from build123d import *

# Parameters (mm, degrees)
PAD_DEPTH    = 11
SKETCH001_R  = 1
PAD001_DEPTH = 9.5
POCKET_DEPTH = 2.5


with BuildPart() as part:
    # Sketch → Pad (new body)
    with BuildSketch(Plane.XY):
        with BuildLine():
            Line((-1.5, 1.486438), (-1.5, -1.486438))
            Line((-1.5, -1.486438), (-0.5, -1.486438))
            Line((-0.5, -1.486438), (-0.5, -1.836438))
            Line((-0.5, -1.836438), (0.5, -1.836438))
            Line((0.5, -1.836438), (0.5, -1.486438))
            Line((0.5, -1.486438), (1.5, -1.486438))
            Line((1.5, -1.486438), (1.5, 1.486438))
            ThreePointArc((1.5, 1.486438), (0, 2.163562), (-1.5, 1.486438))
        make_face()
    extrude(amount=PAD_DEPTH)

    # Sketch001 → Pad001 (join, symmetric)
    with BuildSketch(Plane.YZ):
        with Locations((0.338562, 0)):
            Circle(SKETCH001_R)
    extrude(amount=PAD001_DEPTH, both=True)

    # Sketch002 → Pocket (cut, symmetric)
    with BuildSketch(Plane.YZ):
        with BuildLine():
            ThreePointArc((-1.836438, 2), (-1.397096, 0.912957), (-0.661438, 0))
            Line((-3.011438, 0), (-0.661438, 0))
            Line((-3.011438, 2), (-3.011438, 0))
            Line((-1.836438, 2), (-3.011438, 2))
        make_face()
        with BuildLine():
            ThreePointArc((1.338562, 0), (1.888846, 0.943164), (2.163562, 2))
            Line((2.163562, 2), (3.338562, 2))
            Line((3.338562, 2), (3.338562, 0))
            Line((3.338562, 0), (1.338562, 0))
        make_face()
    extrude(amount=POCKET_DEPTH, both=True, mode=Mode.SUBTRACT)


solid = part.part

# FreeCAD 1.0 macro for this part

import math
import FreeCAD as App
import Part
import Sketcher
from FreeCAD import Vector
Q = App.Units.Quantity

doc = App.newDocument("Part")
body = doc.addObject("PartDesign::Body", "Body")

sketch1 = body.newObject("Sketcher::SketchObject", "Sketch")
sketch1.AttachmentSupport = (doc.getObject("XY_Plane"), [""])
sketch1.MapMode = "FlatFace"
sketch1.addGeometry([
    Part.LineSegment(Vector(-1.5, 1.49, 0), Vector(-1.5, -1.49, 0)),
    Part.LineSegment(Vector(-1.5, -1.49, 0), Vector(-0.5, -1.49, 0)),
    Part.LineSegment(Vector(-0.5, -1.49, 0), Vector(-0.5, -1.84, 0)),
    Part.LineSegment(Vector(-0.5, -1.84, 0), Vector(0.5, -1.84, 0)),
    Part.LineSegment(Vector(0.5, -1.84, 0), Vector(0.5, -1.49, 0)),
    Part.LineSegment(Vector(0.5, -1.49, 0), Vector(1.5, -1.49, 0)),
    Part.LineSegment(Vector(1.5, -1.49, 0), Vector(1.5, 1.49, 0)),
    Part.ArcOfCircle(Part.Circle(Vector(0, 0.16, 0), Vector(0, 0, 1), 2), math.radians(41), math.radians(139)),
], False)
sketch1.addConstraint([
    Sketcher.Constraint("Coincident", 0, 2, 1, 1),
    Sketcher.Constraint("Coincident", 1, 2, 2, 1),
    Sketcher.Constraint("Coincident", 2, 2, 3, 1),
    Sketcher.Constraint("Coincident", 3, 2, 4, 1),
    Sketcher.Constraint("Coincident", 4, 2, 5, 1),
    Sketcher.Constraint("Coincident", 5, 2, 6, 1),
    Sketcher.Constraint("Coincident", 6, 2, 7, 1),
    Sketcher.Constraint("Coincident", 7, 2, 0, 1),
    Sketcher.Constraint("Vertical", 0),
    Sketcher.Constraint("Horizontal", 1),
    Sketcher.Constraint("Vertical", 2),
    Sketcher.Constraint("Horizontal", 3),
    Sketcher.Constraint("Vertical", 4),
    Sketcher.Constraint("Horizontal", 5),
    Sketcher.Constraint("Vertical", 6),
    Sketcher.Constraint("Symmetric", 0, 2, 6, 2, -1, 1),
    Sketcher.Constraint("Symmetric", 1, 2, 4, 2, -2),
    Sketcher.Constraint("PointOnObject", 7, 3, -2),
    Sketcher.Constraint("Equal", 1, 3),
    Sketcher.Constraint("Radius", 7, Q("2.000001 mm")),
    Sketcher.Constraint("DistanceX", 1, 1, 1, 2, Q("1 mm")),
    Sketcher.Constraint("DistanceY", 2, 2, 7, 3, Q("1.999999 mm")),
    Sketcher.Constraint("DistanceY", 2, 2, 2, 1, Q("0.35 mm")),
])
pad1 = body.newObject("PartDesign::Pad", "Pad")
pad1.Profile = sketch1
pad1.Length = 11

sketch2 = body.newObject("Sketcher::SketchObject", "Sketch001")
sketch2.AttachmentSupport = (doc.getObject("YZ_Plane"), [""])
sketch2.MapMode = "FlatFace"
sketch2.addGeometry(Part.Circle(Vector(0.3, 0, 0), Vector(0, 0, 1), 1), False)
sketch2.addConstraint([
    Sketcher.Constraint("PointOnObject", 0, 3, -1),
    Sketcher.Constraint("Diameter", 0, Q("2 mm")),
    Sketcher.Constraint("DistanceX", -1, 1, 0, 3, Q("0.338562 mm")),
])
pad2 = body.newObject("PartDesign::Pad", "Pad001")
pad2.Profile = sketch2
pad2.Length = 19
pad2.Midplane = True

sketch3 = body.newObject("Sketcher::SketchObject", "Sketch002")
sketch3.AttachmentSupport = (doc.getObject("YZ_Plane"), [""])
sketch3.MapMode = "FlatFace"
sketch3.addGeometry([
    Part.ArcOfCircle(Part.Circle(Vector(2.1, 2.9, 0), Vector(0, 0, 1), 4), math.radians(-166), math.radians(-133)),
    Part.LineSegment(Vector(-1.8, 2, 0), Vector(-3, 2, 0)),
    Part.LineSegment(Vector(-3, 2, 0), Vector(-3, 0, 0)),
    Part.LineSegment(Vector(-3, 0, 0), Vector(-0.7, 0, 0)),
    Part.ArcOfCircle(Part.Circle(Vector(-1.8, 2.5, 0), Vector(0, 0, 1), 4), math.radians(-38), math.radians(-7)),
    Part.LineSegment(Vector(1.3, 0, 0), Vector(3.3, 0, 0)),
    Part.LineSegment(Vector(3.3, 0, 0), Vector(3.3, 2, 0)),
    Part.LineSegment(Vector(3.3, 2, 0), Vector(2.2, 2, 0)),
], False)
sketch3.addConstraint([
    Sketcher.Constraint("Coincident", 0, 1, 1, 1),
    Sketcher.Constraint("Coincident", 1, 2, 2, 1),
    Sketcher.Constraint("Coincident", 2, 2, 3, 1),
    Sketcher.Constraint("Coincident", 3, 2, 0, 2),
    Sketcher.Constraint("Coincident", 4, 1, 5, 1),
    Sketcher.Constraint("Coincident", 5, 2, 6, 1),
    Sketcher.Constraint("Coincident", 6, 2, 7, 1),
    Sketcher.Constraint("Coincident", 7, 2, 4, 2),
    Sketcher.Constraint("Horizontal", 1),
    Sketcher.Constraint("Vertical", 2),
    Sketcher.Constraint("Horizontal", 3),
    Sketcher.Constraint("Horizontal", 5),
    Sketcher.Constraint("Vertical", 6),
    Sketcher.Constraint("Horizontal", 7),
    Sketcher.Constraint("PointOnObject", 2, 2, -1),
    Sketcher.Constraint("PointOnObject", 4, 1, -1),
    Sketcher.Constraint("Horizontal", 1, 2, 6, 2),
    Sketcher.Constraint("Equal", 1, 7),
    Sketcher.Constraint("Equal", 5, 2),
    Sketcher.Constraint("DistanceX", 5, 1, 5, 2, Q("2 mm")),
    Sketcher.Constraint("DistanceX", 3, 2, 4, 1, Q("2 mm")),
    Sketcher.Constraint("DistanceX", 3, 1, 3, 2, Q("2.35 mm")),
    Sketcher.Constraint("DistanceX", 1, 2, 1, 1, Q("1.175 mm")),
    Sketcher.Constraint("Radius", 0, Q("4.00001 mm")),
    Sketcher.Constraint("Radius", 4, Q("4.000005 mm")),
    Sketcher.Constraint("DistanceX", 0, 1, -1, 1, Q("1.836438 mm")),
])
pocket1 = body.newObject("PartDesign::Pocket", "Pocket")
pocket1.Profile = sketch3
pocket1.Length = 5
pocket1.Midplane = True

doc.recompute()
